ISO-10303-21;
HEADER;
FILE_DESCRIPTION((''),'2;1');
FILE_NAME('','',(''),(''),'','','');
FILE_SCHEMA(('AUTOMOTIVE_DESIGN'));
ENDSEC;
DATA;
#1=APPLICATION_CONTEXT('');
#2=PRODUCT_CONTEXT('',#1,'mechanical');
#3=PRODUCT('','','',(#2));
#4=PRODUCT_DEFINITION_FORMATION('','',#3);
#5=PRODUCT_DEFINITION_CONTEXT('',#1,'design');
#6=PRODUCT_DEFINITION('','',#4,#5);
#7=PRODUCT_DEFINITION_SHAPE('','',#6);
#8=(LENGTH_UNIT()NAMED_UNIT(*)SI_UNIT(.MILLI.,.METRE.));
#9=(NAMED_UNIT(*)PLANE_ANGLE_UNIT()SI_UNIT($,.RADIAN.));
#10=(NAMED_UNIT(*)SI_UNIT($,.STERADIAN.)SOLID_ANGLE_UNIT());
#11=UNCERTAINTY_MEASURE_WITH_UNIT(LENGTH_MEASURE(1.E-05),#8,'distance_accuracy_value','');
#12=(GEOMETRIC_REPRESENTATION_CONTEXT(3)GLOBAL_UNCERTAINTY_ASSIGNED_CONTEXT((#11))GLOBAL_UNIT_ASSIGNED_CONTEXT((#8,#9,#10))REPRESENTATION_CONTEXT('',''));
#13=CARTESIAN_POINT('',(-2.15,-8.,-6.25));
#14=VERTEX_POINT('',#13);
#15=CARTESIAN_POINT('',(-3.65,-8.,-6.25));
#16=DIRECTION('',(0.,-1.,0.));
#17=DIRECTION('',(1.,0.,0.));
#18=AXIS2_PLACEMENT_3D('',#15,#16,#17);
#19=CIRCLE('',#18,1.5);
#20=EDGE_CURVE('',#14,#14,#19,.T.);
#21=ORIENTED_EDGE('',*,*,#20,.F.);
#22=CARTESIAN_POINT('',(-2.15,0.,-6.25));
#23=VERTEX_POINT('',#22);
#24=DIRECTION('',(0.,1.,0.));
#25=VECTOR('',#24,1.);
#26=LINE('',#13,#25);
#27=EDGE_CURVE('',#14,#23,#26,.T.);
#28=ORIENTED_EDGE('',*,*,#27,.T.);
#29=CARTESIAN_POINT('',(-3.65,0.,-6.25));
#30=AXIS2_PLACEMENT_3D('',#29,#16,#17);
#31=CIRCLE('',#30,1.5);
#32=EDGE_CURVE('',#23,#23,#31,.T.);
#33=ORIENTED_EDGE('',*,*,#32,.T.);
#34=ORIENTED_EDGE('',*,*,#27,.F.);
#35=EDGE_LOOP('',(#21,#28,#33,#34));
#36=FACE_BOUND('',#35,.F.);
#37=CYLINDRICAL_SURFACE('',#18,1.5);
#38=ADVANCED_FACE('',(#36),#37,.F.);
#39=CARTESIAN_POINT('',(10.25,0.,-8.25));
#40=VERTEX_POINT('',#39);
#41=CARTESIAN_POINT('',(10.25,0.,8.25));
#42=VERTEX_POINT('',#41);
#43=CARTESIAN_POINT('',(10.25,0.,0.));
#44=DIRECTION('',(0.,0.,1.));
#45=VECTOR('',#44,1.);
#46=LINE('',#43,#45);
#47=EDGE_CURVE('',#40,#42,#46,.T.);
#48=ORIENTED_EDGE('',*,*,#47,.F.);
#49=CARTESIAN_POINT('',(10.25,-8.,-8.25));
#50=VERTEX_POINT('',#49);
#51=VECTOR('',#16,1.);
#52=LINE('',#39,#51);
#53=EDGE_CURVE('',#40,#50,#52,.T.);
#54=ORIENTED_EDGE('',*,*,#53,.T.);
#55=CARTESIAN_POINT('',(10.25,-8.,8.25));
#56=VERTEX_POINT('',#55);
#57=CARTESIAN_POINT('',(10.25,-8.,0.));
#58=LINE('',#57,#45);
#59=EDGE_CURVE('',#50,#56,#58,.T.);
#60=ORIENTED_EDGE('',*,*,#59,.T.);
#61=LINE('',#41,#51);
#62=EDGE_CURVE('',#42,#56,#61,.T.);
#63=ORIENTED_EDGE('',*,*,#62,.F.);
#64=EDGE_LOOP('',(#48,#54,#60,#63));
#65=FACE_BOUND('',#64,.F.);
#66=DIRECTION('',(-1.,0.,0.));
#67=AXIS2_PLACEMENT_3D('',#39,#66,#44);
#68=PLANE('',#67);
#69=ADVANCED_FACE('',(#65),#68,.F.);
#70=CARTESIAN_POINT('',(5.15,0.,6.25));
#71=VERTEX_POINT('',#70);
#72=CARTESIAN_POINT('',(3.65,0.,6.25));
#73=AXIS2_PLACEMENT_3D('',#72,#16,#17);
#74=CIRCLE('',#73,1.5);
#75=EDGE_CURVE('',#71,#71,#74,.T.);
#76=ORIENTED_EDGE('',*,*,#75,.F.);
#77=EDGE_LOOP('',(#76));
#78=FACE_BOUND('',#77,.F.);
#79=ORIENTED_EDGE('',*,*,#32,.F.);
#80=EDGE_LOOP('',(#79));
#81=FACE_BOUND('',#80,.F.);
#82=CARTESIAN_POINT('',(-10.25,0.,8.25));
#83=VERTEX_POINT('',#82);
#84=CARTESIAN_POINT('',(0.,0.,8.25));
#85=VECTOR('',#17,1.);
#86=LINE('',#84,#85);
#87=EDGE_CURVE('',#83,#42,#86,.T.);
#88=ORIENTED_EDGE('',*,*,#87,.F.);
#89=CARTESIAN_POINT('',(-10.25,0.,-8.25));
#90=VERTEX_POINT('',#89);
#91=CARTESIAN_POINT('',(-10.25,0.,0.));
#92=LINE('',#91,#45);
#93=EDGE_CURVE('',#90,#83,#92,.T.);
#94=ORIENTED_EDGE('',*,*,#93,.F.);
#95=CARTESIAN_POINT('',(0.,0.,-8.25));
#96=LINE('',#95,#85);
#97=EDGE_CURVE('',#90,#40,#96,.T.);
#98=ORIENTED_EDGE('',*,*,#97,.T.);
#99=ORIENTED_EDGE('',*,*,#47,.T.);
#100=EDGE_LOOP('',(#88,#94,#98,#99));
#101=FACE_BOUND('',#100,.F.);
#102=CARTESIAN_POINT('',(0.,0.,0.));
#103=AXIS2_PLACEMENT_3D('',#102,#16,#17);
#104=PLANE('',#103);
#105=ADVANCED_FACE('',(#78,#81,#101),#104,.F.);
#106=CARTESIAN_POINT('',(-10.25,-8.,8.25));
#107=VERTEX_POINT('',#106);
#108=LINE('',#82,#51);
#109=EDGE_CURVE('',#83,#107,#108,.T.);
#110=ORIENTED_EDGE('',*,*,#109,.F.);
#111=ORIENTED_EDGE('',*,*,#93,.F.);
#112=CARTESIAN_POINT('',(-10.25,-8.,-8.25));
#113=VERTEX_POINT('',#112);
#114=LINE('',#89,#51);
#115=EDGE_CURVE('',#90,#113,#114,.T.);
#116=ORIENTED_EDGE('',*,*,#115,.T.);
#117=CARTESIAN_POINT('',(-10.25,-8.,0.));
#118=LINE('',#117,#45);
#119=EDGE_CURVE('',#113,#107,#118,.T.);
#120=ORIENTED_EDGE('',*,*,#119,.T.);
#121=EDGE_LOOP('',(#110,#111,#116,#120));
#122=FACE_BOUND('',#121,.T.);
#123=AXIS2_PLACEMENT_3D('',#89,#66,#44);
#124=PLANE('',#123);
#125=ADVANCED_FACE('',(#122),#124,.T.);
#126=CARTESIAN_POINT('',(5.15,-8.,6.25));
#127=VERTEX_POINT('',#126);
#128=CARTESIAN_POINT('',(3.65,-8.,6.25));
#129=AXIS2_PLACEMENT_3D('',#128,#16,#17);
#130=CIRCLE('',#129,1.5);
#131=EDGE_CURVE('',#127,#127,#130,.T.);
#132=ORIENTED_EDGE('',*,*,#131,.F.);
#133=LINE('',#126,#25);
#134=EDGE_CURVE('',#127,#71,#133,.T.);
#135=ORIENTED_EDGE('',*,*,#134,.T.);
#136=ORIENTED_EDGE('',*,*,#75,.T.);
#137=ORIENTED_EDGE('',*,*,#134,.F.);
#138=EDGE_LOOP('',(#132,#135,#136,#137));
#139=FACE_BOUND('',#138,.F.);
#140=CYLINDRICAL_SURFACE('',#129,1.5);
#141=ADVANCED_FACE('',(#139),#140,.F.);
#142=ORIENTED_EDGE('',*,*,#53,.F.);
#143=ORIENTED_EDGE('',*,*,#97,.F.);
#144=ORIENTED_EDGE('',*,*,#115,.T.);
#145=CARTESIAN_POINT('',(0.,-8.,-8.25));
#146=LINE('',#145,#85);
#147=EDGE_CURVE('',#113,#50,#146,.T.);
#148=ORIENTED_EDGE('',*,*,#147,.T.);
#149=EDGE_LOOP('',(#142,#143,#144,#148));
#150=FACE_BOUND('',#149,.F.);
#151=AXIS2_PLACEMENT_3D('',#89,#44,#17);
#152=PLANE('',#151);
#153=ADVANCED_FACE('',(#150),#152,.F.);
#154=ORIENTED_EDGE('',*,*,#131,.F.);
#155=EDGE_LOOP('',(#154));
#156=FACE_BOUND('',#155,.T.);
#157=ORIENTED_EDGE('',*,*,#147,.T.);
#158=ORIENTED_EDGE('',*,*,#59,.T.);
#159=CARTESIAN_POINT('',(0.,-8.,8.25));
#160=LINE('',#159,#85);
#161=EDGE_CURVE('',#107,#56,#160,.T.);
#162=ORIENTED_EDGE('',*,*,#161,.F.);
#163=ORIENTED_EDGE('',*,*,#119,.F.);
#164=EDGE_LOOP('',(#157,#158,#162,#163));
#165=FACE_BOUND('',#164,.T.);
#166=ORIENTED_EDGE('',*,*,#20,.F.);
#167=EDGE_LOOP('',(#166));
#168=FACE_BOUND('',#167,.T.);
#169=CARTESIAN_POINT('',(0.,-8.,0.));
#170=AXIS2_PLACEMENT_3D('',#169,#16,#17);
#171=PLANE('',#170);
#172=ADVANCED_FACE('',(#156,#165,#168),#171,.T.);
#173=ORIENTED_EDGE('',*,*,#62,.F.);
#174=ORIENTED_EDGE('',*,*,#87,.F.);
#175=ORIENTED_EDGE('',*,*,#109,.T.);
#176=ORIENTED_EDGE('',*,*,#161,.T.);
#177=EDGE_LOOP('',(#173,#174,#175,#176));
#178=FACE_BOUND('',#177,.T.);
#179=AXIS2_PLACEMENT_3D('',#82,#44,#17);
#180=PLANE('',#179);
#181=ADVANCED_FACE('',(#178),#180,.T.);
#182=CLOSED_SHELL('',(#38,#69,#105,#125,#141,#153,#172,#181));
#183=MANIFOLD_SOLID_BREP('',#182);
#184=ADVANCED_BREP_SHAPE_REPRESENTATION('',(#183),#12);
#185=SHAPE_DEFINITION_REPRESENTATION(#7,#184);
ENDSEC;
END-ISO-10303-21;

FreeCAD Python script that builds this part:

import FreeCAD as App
import Part
import Sketcher


def add_polygon(sketch, points):
    """Adds a closed chain of lines whose ends are joined by coincident constraints."""
    first, n = sketch.GeometryCount, len(points)
    for a, b in zip(points, points[1:] + points[:1]):
        sketch.addGeometry(Part.LineSegment(App.Vector(*a, 0), App.Vector(*b, 0)), False)
    for i in range(n):
        sketch.addConstraint(Sketcher.Constraint("Coincident", first + i, 2, first + (i + 1) % n, 1))

doc = App.newDocument("Part")
params = doc.addObject("Spreadsheet::Sheet", "Params")
for row, (alias, value) in enumerate([
    ("sketch1_width", "20.5 mm"),
    ("sketch1_height", "16.5 mm"),
    ("pad1_length", "8 mm"),
    ("sketch2_diameter", "3 mm"),
    ("pocket1_length", "25 mm"),
    ("sketch3_diameter", "3 mm"),
    ("pocket2_length", "25 mm"),
    ("sketch4_diameter", "3 mm"),
    ("pocket3_length", "25 mm"),
], start=1):
    params.set(f"A{row}", alias)
    params.set(f"B{row}", "=" + value)
    params.setAlias(f"B{row}", alias)

body = doc.addObject("PartDesign::Body", "Body")

sketch1 = body.newObject("Sketcher::SketchObject", "Sketch")
sketch1.AttachmentSupport = (doc.getObject("XZ_Plane"), [""])
sketch1.MapMode = "FlatFace"
add_polygon(sketch1, [(-10, 8), (-10, -8), (10, -8), (10, 8)])
sketch1.addConstraint([
    Sketcher.Constraint("Vertical", 0),
    Sketcher.Constraint("Horizontal", 1),
    Sketcher.Constraint("Vertical", 2),
    Sketcher.Constraint("Horizontal", 3),
    Sketcher.Constraint("Symmetric", 0, 2, 2, 2, -1, 1),
    Sketcher.Constraint("DistanceX", 1, 1, 1, 2, 20.5),
    Sketcher.Constraint("DistanceY", 0, 2, 0, 1, 16.5),
])
sketch1.setExpression("Constraints[9]", "Params.sketch1_width")
sketch1.setExpression("Constraints[10]", "Params.sketch1_height")
pad1 = body.newObject("PartDesign::Pad", "Pad")
pad1.Profile = sketch1
pad1.setExpression("Length", "Params.pad1_length")

sketch2 = body.newObject("Sketcher::SketchObject", "Sketch001")
sketch2.AttachmentSupport = (doc.getObject("XZ_Plane"), [""])
sketch2.MapMode = "FlatFace"
sketch2.AttachmentOffset = App.Placement(App.Vector(0, 0, 8), App.Rotation())
sketch2.addGeometry([
    Part.Circle(App.Vector(3.6, 6.2, 0), App.Vector(0, 0, 1), 1.5),
    Part.Circle(App.Vector(-3.6, -6.2, 0), App.Vector(0, 0, 1), 1.5),
], False)
sketch2.addConstraint([
    Sketcher.Constraint("Equal", 0, 1),
    Sketcher.Constraint("Symmetric", 0, 3, 1, 3, -1, 1),
    Sketcher.Constraint("Diameter", 0, 3.0),
    Sketcher.Constraint("DistanceX", 1, 3, 0, 3, 7.3),
    Sketcher.Constraint("DistanceY", 1, 3, 0, 3, 12.5),
])
sketch2.setExpression("Constraints[2]", "Params.sketch2_diameter")
pocket1 = body.newObject("PartDesign::Pocket", "Pocket")
pocket1.Profile = sketch2
pocket1.setExpression("Length", "Params.pocket1_length")

sketch3 = body.newObject("Sketcher::SketchObject", "Sketch002")
sketch3.AttachmentSupport = (doc.getObject("XZ_Plane"), [""])
sketch3.MapMode = "FlatFace"
sketch3.AttachmentOffset = App.Placement(App.Vector(0, 0, 8), App.Rotation())
sketch3.addGeometry([
    Part.Circle(App.Vector(3.6, 6.2, 0), App.Vector(0, 0, 1), 1.5),
    Part.Circle(App.Vector(-3.6, -6.2, 0), App.Vector(0, 0, 1), 1.5),
], False)
sketch3.addConstraint([
    Sketcher.Constraint("Equal", 0, 1),
    Sketcher.Constraint("Symmetric", 0, 3, 1, 3, -1, 1),
    Sketcher.Constraint("Diameter", 0, 3.0),
    Sketcher.Constraint("DistanceX", 1, 3, 0, 3, 7.3),
    Sketcher.Constraint("DistanceY", 1, 3, 0, 3, 12.5),
])
sketch3.setExpression("Constraints[2]", "Params.sketch3_diameter")
pocket2 = body.newObject("PartDesign::Pocket", "Pocket001")
pocket2.Profile = sketch3
pocket2.setExpression("Length", "Params.pocket2_length")

sketch4 = body.newObject("Sketcher::SketchObject", "Sketch003")
sketch4.AttachmentSupport = (doc.getObject("XZ_Plane"), [""])
sketch4.MapMode = "FlatFace"
sketch4.AttachmentOffset = App.Placement(App.Vector(0, 0, 8), App.Rotation())
sketch4.addGeometry([
    Part.Circle(App.Vector(3.6, 6.2, 0), App.Vector(0, 0, 1), 1.5),
    Part.Circle(App.Vector(-3.6, -6.2, 0), App.Vector(0, 0, 1), 1.5),
], False)
sketch4.addConstraint([
    Sketcher.Constraint("Equal", 0, 1),
    Sketcher.Constraint("Symmetric", 0, 3, 1, 3, -1, 1),
    Sketcher.Constraint("Diameter", 0, 3.0),
    Sketcher.Constraint("DistanceX", 1, 3, 0, 3, 7.3),
    Sketcher.Constraint("DistanceY", 1, 3, 0, 3, 12.5),
])
sketch4.setExpression("Constraints[2]", "Params.sketch4_diameter")
pocket3 = body.newObject("PartDesign::Pocket", "Pocket002")
pocket3.Profile = sketch4
pocket3.setExpression("Length", "Params.pocket3_length")

doc.recompute()
